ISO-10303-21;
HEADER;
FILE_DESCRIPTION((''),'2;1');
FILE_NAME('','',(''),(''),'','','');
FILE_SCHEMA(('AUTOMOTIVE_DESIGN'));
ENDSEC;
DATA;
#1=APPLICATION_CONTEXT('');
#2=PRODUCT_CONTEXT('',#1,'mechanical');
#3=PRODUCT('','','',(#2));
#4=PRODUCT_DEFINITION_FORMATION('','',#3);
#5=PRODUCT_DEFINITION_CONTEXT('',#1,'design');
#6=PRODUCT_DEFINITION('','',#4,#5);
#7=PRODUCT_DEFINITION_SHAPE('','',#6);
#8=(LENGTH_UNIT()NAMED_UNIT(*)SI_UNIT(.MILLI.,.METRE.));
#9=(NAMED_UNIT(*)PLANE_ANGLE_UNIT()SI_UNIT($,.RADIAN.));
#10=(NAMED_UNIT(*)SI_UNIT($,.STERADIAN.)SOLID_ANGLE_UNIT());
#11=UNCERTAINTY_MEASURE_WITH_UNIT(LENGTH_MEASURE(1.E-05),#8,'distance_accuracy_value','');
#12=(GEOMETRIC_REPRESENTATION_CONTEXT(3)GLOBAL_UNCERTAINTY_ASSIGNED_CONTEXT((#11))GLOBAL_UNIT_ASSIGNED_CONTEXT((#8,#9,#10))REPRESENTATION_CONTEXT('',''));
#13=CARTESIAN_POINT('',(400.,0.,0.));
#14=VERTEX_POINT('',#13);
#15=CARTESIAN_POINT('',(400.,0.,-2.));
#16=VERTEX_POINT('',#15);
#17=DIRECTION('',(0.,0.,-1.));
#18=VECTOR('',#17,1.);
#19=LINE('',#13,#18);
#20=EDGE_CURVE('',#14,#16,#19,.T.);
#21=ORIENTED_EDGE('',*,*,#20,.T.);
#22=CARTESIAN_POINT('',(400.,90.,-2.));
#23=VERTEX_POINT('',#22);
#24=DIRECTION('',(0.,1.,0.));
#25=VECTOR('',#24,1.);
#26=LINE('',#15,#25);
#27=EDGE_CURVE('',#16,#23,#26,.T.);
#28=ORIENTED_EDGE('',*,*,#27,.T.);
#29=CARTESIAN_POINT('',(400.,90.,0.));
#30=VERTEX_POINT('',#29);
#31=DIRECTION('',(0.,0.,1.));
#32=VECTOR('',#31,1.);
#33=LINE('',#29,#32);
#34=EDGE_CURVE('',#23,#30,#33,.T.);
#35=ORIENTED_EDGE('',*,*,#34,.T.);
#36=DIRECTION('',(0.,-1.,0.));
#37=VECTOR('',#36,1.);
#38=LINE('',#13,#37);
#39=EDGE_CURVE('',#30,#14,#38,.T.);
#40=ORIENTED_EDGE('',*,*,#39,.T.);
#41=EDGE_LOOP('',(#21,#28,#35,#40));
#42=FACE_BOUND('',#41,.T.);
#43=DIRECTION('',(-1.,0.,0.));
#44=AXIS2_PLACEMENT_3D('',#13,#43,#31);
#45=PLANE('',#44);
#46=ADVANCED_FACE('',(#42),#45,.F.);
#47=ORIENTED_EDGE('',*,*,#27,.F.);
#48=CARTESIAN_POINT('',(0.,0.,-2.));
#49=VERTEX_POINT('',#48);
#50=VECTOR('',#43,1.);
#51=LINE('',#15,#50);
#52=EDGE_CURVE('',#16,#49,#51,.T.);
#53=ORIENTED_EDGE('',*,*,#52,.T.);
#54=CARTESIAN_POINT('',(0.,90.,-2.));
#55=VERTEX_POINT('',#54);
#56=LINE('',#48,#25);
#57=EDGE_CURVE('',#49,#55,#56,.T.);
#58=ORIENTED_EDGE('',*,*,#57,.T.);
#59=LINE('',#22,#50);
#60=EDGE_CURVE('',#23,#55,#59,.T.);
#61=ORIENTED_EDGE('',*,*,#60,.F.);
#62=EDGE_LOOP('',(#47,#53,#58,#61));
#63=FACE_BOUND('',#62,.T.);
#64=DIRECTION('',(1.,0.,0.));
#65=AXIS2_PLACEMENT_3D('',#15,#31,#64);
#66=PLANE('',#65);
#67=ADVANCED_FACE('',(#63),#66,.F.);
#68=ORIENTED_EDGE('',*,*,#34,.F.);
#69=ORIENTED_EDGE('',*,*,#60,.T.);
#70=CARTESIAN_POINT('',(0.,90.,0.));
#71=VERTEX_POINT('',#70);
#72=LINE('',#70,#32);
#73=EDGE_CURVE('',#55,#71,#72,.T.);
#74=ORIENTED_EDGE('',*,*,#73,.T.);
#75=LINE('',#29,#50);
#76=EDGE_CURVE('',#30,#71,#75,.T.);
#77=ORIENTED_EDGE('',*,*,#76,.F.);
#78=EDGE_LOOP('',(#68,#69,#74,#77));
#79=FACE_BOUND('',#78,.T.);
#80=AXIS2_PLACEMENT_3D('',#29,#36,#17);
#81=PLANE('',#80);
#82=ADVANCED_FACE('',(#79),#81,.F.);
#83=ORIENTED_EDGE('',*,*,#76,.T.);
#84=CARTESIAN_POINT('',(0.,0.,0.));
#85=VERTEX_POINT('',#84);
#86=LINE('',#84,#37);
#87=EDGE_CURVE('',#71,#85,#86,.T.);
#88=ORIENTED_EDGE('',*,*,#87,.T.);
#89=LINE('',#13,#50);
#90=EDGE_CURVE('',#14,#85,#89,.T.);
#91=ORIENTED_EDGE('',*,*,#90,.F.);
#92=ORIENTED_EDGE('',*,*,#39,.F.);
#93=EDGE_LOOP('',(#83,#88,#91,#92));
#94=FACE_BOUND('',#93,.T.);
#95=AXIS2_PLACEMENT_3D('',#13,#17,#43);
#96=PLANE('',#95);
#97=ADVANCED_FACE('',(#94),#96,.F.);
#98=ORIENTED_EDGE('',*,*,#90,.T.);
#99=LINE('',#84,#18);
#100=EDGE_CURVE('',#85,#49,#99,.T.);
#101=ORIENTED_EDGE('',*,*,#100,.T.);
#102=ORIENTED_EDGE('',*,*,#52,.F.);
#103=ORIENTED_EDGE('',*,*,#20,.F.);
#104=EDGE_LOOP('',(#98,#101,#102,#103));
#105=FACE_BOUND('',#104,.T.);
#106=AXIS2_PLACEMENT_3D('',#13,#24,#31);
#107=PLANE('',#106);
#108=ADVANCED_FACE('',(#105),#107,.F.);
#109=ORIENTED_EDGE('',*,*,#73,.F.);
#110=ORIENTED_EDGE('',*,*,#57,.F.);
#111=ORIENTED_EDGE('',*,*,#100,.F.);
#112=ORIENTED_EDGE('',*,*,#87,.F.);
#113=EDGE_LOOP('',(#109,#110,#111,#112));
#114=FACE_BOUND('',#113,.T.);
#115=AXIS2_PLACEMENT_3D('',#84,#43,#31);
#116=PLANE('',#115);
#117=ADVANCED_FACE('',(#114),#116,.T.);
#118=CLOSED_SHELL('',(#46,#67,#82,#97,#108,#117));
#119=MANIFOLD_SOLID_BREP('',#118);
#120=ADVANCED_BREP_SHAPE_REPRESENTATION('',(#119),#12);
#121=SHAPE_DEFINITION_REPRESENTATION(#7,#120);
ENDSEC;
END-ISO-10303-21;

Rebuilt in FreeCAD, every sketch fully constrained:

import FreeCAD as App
import Part
import Sketcher

V = App.Vector
Q = App.Units.Quantity


def add_polygon(sketch, points):
    """Adds a closed chain of lines whose ends are joined by coincident constraints."""
    first, n = sketch.GeometryCount, len(points)
    for a, b in zip(points, points[1:] + points[:1]):
        sketch.addGeometry(Part.LineSegment(App.Vector(*a, 0), App.Vector(*b, 0)), False)
    for i in range(n):
        sketch.addConstraint(Sketcher.Constraint("Coincident", first + i, 2, first + (i + 1) % n, 1))

doc = App.newDocument("Part")
body = doc.addObject("PartDesign::Body", "Body")

# Sketch on YZ plane
sketch1 = body.newObject("Sketcher::SketchObject", "Sketch")
sketch1.AttachmentSupport = (doc.getObject("YZ_Plane"), [""])
sketch1.MapMode = "FlatFace"
add_polygon(sketch1, [(90, 0), (0, 0), (0, -2), (90, -2)])  # lines 0-3
sketch1.addConstraint(Sketcher.Constraint("Horizontal", 0))
sketch1.addConstraint(Sketcher.Constraint("Vertical", 1))
sketch1.addConstraint(Sketcher.Constraint("Horizontal", 2))
sketch1.addConstraint(Sketcher.Constraint("Vertical", 3))
sketch1.addConstraint(Sketcher.Constraint("Coincident", 0, 2, -1, 1))
sketch1.addConstraint(Sketcher.Constraint("DistanceX", 0, 2, 0, 1, Q("90 mm")))
sketch1.addConstraint(Sketcher.Constraint("DistanceY", 1, 2, 1, 1, Q("2 mm")))
pad1 = body.newObject("PartDesign::Pad", "Pad")
pad1.Profile = sketch1
pad1.Length = 400

doc.recompute()
